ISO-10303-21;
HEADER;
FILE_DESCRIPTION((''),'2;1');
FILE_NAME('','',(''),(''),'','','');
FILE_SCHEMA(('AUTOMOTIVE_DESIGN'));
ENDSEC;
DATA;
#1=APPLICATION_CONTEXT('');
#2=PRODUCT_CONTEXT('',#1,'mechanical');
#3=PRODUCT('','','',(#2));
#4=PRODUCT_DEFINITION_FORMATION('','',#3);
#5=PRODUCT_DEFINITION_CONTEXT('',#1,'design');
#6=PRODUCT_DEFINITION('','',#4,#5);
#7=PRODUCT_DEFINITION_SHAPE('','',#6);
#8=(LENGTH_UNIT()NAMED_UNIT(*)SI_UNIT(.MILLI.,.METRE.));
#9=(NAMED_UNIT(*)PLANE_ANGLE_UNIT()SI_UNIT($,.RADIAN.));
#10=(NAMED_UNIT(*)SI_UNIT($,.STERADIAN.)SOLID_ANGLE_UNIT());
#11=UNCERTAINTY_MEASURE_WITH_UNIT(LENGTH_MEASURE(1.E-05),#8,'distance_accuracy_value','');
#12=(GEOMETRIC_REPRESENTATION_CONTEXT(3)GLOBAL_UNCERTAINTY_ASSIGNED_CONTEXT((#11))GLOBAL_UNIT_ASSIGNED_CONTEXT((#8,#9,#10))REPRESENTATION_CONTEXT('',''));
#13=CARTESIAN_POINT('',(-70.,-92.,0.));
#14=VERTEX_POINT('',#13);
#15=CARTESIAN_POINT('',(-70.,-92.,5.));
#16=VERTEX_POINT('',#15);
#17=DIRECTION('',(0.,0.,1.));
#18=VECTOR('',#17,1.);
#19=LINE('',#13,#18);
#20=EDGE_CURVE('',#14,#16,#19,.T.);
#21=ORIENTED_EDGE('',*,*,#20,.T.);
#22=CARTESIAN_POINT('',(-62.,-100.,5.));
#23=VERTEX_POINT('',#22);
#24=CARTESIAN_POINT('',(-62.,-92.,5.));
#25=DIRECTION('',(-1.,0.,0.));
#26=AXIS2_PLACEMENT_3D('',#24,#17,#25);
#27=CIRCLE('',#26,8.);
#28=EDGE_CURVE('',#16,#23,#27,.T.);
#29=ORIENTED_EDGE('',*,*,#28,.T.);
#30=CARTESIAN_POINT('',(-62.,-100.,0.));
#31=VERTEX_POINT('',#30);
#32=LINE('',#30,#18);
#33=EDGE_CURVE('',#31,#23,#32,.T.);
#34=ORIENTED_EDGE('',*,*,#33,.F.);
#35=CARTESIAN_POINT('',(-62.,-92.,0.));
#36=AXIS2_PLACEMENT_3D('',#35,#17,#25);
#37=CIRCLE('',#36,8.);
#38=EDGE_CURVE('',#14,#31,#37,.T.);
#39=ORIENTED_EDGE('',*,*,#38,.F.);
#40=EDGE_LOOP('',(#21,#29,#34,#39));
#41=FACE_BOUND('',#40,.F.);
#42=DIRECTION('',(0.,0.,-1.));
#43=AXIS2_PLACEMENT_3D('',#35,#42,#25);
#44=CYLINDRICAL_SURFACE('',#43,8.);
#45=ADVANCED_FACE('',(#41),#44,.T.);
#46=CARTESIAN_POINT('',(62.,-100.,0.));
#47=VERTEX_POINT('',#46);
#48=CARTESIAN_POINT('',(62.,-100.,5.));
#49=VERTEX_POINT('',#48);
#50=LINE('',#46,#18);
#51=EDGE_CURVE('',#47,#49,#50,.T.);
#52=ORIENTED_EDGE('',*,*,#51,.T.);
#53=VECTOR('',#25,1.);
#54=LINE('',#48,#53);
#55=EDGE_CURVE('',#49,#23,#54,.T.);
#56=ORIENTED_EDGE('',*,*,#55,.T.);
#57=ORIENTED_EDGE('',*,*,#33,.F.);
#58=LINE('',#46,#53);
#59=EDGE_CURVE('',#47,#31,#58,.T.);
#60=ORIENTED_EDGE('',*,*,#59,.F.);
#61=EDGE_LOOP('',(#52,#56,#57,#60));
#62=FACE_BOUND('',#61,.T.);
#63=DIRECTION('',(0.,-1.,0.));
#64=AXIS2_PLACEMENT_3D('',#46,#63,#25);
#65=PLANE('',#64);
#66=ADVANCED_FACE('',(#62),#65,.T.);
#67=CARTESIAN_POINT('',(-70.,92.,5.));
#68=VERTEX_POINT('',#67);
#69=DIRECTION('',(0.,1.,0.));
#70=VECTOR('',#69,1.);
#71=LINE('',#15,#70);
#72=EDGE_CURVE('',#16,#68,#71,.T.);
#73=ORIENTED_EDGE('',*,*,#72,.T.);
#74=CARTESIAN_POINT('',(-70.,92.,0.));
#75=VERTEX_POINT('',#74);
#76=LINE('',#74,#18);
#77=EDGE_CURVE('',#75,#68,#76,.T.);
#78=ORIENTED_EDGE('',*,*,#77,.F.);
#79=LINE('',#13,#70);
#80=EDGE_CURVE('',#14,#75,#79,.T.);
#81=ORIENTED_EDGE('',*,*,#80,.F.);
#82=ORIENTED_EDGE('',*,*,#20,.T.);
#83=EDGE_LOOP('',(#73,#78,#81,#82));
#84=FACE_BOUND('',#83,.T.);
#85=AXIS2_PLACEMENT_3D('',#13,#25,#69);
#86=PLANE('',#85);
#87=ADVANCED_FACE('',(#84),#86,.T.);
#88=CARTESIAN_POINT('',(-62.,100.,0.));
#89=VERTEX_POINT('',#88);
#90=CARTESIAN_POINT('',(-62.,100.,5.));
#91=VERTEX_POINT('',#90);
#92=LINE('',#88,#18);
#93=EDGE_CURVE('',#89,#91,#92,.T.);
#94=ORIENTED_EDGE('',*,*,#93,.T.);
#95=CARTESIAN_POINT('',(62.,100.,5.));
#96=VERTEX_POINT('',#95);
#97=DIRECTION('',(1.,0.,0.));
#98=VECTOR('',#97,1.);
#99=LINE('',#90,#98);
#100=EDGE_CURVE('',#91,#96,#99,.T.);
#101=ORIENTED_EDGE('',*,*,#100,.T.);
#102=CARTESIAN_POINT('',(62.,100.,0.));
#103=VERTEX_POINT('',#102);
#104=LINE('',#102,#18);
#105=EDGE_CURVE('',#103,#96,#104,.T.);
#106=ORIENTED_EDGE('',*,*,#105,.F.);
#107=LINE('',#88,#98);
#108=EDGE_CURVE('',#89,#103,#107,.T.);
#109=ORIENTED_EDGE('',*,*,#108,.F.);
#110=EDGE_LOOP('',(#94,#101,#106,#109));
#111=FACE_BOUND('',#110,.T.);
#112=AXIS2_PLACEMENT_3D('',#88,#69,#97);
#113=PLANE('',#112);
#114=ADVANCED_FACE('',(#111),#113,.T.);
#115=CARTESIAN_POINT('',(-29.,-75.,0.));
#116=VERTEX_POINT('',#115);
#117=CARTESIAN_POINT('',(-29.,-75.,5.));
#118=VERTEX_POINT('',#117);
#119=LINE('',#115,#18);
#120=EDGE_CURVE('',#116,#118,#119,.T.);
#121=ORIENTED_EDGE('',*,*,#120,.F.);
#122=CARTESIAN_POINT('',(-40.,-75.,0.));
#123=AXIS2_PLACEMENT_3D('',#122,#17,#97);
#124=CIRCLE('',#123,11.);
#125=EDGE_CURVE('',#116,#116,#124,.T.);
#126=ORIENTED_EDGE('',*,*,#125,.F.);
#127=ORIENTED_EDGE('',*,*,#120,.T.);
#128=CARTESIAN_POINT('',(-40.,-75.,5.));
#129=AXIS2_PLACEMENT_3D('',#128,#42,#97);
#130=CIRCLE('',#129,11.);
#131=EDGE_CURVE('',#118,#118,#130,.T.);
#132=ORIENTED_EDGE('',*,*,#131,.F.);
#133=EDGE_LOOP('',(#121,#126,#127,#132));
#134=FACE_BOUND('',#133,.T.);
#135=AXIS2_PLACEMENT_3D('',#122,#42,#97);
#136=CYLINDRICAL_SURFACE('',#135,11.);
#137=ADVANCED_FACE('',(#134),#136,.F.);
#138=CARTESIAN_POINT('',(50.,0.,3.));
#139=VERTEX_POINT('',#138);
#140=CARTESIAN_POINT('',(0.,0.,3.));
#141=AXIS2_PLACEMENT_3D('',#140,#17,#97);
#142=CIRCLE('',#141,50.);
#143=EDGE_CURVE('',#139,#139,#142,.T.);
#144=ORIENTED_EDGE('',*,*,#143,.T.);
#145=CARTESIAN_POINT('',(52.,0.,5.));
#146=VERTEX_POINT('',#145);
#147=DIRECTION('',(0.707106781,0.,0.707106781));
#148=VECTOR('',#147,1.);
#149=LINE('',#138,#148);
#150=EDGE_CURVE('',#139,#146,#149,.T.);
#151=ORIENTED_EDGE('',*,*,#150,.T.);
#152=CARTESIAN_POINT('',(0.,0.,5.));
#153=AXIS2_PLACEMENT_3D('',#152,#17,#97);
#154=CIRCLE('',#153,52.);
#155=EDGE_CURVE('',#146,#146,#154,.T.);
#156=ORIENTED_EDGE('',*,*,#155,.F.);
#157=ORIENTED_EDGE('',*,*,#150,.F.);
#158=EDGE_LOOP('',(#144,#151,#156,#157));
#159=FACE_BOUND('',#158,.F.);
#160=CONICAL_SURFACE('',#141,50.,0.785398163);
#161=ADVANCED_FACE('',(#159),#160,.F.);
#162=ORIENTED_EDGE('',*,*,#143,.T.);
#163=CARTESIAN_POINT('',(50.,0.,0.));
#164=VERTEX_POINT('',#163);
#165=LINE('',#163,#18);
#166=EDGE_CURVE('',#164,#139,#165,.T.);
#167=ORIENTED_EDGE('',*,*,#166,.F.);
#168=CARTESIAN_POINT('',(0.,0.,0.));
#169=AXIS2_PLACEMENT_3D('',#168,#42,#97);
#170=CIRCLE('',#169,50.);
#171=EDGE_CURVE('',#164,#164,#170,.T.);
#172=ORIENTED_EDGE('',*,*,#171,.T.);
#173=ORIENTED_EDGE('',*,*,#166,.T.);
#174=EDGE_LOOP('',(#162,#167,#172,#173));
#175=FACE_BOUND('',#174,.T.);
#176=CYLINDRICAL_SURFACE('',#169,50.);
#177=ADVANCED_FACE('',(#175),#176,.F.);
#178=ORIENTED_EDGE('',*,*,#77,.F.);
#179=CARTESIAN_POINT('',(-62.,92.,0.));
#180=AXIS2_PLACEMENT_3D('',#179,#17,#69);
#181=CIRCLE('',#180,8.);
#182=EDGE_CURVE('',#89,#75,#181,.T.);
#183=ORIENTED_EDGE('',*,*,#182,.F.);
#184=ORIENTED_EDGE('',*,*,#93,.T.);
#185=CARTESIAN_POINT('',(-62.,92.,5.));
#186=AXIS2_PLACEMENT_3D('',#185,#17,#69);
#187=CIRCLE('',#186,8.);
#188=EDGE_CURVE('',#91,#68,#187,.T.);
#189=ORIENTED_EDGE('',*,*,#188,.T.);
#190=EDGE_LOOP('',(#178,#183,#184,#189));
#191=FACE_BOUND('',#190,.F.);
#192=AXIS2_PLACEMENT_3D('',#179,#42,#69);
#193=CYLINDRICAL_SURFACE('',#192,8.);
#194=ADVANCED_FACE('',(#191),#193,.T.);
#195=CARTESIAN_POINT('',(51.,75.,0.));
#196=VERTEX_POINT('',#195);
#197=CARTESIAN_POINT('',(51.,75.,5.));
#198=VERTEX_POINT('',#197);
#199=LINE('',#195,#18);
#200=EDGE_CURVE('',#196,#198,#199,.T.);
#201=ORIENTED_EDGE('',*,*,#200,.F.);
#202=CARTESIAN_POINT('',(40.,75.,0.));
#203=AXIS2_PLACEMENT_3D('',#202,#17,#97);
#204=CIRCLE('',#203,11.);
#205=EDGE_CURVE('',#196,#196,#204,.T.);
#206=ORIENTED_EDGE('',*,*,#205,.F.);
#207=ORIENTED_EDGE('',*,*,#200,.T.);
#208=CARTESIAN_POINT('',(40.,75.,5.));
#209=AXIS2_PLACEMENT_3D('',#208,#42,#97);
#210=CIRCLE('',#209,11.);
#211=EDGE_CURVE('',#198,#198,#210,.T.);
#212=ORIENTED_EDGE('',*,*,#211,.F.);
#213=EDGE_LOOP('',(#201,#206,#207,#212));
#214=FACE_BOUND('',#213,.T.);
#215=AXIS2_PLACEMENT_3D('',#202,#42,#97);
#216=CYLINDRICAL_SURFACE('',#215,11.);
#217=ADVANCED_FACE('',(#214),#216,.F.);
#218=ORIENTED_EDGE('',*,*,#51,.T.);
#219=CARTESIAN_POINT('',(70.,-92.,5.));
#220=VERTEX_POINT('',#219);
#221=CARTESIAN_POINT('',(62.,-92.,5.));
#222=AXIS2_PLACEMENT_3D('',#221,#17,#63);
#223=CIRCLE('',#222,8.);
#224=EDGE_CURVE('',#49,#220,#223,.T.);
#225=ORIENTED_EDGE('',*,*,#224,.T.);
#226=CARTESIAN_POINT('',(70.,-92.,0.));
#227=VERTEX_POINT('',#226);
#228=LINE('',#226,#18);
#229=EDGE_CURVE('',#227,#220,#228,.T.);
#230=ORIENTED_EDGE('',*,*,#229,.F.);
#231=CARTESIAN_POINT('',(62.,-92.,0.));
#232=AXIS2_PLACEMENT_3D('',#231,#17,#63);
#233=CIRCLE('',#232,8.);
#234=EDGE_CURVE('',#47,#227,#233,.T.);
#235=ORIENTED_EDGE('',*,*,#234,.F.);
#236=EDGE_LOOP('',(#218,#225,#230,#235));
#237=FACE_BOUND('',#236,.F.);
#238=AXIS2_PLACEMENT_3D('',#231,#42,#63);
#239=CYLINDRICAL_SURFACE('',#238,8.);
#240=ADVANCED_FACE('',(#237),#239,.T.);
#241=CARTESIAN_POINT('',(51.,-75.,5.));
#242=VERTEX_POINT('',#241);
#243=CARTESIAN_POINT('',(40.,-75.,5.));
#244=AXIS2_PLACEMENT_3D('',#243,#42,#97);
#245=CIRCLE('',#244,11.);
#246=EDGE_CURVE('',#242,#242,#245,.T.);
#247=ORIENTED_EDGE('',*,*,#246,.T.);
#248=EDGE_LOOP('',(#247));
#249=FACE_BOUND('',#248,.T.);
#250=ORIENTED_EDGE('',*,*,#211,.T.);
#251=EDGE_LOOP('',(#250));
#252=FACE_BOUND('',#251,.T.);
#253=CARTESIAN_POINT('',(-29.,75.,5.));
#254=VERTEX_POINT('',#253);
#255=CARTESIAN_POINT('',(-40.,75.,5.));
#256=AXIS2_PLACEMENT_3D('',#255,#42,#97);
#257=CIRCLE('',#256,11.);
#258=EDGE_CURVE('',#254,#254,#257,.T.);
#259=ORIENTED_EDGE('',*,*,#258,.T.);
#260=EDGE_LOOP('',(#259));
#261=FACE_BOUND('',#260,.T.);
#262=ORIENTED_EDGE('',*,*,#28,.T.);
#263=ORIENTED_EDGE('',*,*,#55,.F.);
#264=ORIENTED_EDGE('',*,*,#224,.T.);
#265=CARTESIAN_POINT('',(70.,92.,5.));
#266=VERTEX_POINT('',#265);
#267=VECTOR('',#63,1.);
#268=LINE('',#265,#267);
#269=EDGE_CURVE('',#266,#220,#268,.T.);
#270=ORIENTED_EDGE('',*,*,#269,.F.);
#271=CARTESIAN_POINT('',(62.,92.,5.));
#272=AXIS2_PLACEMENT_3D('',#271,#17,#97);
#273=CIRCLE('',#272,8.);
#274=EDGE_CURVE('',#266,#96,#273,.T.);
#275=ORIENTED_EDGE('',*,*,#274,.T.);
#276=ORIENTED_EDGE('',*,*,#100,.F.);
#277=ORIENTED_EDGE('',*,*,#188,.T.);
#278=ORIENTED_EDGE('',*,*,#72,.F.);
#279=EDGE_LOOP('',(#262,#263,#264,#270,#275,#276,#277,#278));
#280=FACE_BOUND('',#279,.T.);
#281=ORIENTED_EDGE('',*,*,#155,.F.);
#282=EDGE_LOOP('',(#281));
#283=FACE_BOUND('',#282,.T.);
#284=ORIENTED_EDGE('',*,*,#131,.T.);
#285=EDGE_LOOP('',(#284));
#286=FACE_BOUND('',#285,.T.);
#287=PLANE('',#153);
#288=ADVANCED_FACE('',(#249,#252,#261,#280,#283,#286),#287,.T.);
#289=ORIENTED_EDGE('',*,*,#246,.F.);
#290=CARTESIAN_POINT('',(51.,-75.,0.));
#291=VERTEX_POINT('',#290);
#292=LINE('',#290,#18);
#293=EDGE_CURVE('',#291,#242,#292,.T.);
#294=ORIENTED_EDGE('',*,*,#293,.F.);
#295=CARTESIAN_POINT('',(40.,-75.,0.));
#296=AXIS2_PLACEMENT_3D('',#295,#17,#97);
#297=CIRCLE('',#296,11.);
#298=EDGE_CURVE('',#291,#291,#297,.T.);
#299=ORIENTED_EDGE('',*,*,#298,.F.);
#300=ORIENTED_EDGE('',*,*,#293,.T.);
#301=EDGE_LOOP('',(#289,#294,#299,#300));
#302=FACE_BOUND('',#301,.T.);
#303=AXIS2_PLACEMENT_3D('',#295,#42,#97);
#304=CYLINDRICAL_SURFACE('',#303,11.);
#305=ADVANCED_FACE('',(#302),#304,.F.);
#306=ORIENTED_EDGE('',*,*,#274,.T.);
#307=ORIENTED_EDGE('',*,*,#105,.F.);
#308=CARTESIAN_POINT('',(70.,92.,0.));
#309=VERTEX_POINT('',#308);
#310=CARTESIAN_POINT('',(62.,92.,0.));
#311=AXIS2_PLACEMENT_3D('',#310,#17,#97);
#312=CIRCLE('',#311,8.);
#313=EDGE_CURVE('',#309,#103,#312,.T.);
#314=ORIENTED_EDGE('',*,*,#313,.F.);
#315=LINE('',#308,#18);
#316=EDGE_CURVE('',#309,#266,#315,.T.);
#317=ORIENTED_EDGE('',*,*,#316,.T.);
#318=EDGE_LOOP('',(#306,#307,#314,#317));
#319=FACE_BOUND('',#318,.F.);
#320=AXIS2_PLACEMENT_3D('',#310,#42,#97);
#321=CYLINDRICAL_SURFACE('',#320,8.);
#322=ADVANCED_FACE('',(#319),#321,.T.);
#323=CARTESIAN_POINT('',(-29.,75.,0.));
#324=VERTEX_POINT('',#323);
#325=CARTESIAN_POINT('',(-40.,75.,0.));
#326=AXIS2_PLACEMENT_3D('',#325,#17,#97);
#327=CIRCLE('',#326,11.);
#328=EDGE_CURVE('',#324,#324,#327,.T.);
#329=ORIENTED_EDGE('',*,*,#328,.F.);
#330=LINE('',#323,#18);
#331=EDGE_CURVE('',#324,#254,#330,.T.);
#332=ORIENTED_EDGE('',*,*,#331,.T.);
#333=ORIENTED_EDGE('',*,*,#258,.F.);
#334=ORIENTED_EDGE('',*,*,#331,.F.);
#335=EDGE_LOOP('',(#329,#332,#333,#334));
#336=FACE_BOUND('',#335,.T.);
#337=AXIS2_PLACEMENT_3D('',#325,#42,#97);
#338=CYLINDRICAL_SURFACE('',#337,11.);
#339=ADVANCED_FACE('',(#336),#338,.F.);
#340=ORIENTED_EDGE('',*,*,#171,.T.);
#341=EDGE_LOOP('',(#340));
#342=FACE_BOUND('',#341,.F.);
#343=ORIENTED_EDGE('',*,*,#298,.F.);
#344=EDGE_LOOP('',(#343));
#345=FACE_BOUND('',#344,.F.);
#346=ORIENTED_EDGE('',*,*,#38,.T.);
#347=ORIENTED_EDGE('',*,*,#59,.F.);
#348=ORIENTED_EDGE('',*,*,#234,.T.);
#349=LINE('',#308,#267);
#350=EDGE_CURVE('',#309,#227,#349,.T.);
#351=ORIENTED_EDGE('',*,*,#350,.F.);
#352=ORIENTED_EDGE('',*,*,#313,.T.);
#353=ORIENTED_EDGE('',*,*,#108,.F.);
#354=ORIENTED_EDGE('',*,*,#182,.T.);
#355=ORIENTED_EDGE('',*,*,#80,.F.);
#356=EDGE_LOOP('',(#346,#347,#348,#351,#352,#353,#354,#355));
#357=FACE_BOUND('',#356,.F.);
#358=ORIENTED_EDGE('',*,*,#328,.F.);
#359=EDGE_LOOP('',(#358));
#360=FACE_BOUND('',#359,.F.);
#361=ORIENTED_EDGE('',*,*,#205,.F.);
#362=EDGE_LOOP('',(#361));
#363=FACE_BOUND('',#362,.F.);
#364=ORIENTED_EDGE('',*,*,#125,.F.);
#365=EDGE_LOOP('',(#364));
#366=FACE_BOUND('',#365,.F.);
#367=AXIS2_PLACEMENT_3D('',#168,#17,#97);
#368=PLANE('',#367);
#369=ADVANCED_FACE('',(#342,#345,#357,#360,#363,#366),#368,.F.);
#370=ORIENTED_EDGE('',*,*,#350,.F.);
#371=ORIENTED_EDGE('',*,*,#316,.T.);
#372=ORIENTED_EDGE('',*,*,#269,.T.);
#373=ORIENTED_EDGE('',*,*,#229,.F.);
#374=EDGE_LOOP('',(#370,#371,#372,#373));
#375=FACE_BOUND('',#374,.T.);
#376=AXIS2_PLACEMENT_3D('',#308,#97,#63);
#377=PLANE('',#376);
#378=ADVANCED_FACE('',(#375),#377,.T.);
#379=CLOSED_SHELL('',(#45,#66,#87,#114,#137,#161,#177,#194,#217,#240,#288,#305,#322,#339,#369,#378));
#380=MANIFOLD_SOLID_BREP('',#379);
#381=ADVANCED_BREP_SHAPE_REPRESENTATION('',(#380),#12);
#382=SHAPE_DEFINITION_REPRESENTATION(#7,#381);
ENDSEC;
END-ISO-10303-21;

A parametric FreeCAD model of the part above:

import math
import FreeCAD as App
import Part
import Sketcher

V = App.Vector
Q = App.Units.Quantity


def edges_at(feature, points):
    """Names of the edges that pass closest to the given points."""
    edges = feature.Shape.Edges
    near = lambda p: min(range(len(edges)), key=lambda i: edges[i].distToShape(Part.Vertex(*p))[0])
    return sorted({f"Edge{near(p) + 1}" for p in points})

doc = App.newDocument("Part")
params = doc.addObject("Spreadsheet::Sheet", "Params")
for row, (alias, value) in enumerate([
    ("sketch1_diameter", "22 mm"),
    ("sketch1_radius", "8 mm"),
    ("sketch1_diameter2", "100 mm"),
    ("sketch1_height", "184 mm"),
    ("pad1_length", "5 mm"),
    ("chamfer_size", "2 mm"),
], start=1):
    params.set(f"A{row}", alias)
    params.set(f"B{row}", "=" + value)
    params.setAlias(f"B{row}", alias)

body = doc.addObject("PartDesign::Body", "Body")

# Sketch on XY plane
sketch1 = doc.addObject("Sketcher::SketchObject", "Sketch")
body.addObject(sketch1)
sketch1.AttachmentSupport = (doc.XY_Plane, [""])
sketch1.MapMode = "FlatFace"
sketch1.addGeometry([
    Part.LineSegment(V(-70, 92, 0), V(-70, -92, 0)),  # 0
    Part.ArcOfCircle(Part.Circle(V(-62, -92, 0), V(0, 0, 1), 8), math.radians(180), math.radians(270)),  # 1
    Part.LineSegment(V(-62, -100, 0), V(62, -100, 0)),  # 2
    Part.ArcOfCircle(Part.Circle(V(62, -92, 0), V(0, 0, 1), 8), math.radians(-90), math.radians(0)),  # 3
    Part.LineSegment(V(70, -92, 0), V(70, 92, 0)),  # 4
    Part.ArcOfCircle(Part.Circle(V(62, 92, 0), V(0, 0, 1), 8), math.radians(0), math.radians(90)),  # 5
    Part.LineSegment(V(62, 100, 0), V(-62, 100, 0)),  # 6
    Part.ArcOfCircle(Part.Circle(V(-62, 92, 0), V(0, 0, 1), 8), math.radians(90), math.radians(180)),  # 7
    Part.Circle(V(0, 0, 0), V(0, 0, 1), 50),  # 8
    Part.Circle(V(-40, 75, 0), V(0, 0, 1), 11),  # 9
    Part.Circle(V(40, 75, 0), V(0, 0, 1), 11),  # 10
    Part.Circle(V(40, -75, 0), V(0, 0, 1), 11),  # 11
    Part.Circle(V(-40, -75, 0), V(0, 0, 1), 11),  # 12
], False)
sketch1.addConstraint([
    Sketcher.Constraint("Tangent", 0, 2, 1, 1),
    Sketcher.Constraint("Tangent", 1, 2, 2, 1),
    Sketcher.Constraint("Tangent", 2, 2, 3, 1),
    Sketcher.Constraint("Tangent", 3, 2, 4, 1),
    Sketcher.Constraint("Tangent", 4, 2, 5, 1),
    Sketcher.Constraint("Tangent", 5, 2, 6, 1),
    Sketcher.Constraint("Tangent", 6, 2, 7, 1),
    Sketcher.Constraint("Tangent", 7, 2, 0, 1),
    Sketcher.Constraint("Vertical", 0),
    Sketcher.Constraint("Horizontal", 2),
    Sketcher.Constraint("Vertical", 4),
    Sketcher.Constraint("Horizontal", 6),
    Sketcher.Constraint("Coincident", 8, 3, -1, 1),
    Sketcher.Constraint("Equal", 1, 3),
    Sketcher.Constraint("Equal", 3, 5),
    Sketcher.Constraint("Equal", 5, 7),
    Sketcher.Constraint("Equal", 9, 10),
    Sketcher.Constraint("Equal", 10, 11),
    Sketcher.Constraint("Equal", 11, 12),
    Sketcher.Constraint("Symmetric", 1, 3, 5, 3, -1, 1),
    Sketcher.Constraint("Symmetric", 9, 3, 11, 3, -1, 1),
    Sketcher.Constraint("Symmetric", 10, 3, 12, 3, -1, 1),
    Sketcher.Constraint("Symmetric", 9, 3, 10, 3, -2),
    Sketcher.Constraint("Diameter", 9, Q("22 mm")),
    Sketcher.Constraint("Radius", 1, Q("8 mm")),
    Sketcher.Constraint("Diameter", 8, Q("100 mm")),
    Sketcher.Constraint("DistanceX", 9, 3, -1, 1, Q("40 mm")),
    Sketcher.Constraint("DistanceX", 7, 3, 9, 3, Q("22 mm")),
    Sketcher.Constraint("DistanceY", 11, 3, 10, 3, Q("150 mm")),
    Sketcher.Constraint("DistanceY", 0, 2, 0, 1, Q("184 mm")),
])
sketch1.setExpression("Constraints[23]", "Params.sketch1_diameter")
sketch1.setExpression("Constraints[24]", "Params.sketch1_radius")
sketch1.setExpression("Constraints[25]", "Params.sketch1_diameter2")
sketch1.setExpression("Constraints[29]", "Params.sketch1_height")
pad1 = doc.addObject("PartDesign::Pad", "Pad")
body.addObject(pad1)
pad1.Profile = sketch1
pad1.setExpression("Length", "Params.pad1_length")
doc.recompute()

chamfer = doc.addObject("PartDesign::Chamfer", "Chamfer")
body.addObject(chamfer)
chamfer.Base = (pad1, edges_at(pad1, [(-50, 0, 5)]))
chamfer.setExpression("Size", "Params.chamfer_size")

doc.recompute()
